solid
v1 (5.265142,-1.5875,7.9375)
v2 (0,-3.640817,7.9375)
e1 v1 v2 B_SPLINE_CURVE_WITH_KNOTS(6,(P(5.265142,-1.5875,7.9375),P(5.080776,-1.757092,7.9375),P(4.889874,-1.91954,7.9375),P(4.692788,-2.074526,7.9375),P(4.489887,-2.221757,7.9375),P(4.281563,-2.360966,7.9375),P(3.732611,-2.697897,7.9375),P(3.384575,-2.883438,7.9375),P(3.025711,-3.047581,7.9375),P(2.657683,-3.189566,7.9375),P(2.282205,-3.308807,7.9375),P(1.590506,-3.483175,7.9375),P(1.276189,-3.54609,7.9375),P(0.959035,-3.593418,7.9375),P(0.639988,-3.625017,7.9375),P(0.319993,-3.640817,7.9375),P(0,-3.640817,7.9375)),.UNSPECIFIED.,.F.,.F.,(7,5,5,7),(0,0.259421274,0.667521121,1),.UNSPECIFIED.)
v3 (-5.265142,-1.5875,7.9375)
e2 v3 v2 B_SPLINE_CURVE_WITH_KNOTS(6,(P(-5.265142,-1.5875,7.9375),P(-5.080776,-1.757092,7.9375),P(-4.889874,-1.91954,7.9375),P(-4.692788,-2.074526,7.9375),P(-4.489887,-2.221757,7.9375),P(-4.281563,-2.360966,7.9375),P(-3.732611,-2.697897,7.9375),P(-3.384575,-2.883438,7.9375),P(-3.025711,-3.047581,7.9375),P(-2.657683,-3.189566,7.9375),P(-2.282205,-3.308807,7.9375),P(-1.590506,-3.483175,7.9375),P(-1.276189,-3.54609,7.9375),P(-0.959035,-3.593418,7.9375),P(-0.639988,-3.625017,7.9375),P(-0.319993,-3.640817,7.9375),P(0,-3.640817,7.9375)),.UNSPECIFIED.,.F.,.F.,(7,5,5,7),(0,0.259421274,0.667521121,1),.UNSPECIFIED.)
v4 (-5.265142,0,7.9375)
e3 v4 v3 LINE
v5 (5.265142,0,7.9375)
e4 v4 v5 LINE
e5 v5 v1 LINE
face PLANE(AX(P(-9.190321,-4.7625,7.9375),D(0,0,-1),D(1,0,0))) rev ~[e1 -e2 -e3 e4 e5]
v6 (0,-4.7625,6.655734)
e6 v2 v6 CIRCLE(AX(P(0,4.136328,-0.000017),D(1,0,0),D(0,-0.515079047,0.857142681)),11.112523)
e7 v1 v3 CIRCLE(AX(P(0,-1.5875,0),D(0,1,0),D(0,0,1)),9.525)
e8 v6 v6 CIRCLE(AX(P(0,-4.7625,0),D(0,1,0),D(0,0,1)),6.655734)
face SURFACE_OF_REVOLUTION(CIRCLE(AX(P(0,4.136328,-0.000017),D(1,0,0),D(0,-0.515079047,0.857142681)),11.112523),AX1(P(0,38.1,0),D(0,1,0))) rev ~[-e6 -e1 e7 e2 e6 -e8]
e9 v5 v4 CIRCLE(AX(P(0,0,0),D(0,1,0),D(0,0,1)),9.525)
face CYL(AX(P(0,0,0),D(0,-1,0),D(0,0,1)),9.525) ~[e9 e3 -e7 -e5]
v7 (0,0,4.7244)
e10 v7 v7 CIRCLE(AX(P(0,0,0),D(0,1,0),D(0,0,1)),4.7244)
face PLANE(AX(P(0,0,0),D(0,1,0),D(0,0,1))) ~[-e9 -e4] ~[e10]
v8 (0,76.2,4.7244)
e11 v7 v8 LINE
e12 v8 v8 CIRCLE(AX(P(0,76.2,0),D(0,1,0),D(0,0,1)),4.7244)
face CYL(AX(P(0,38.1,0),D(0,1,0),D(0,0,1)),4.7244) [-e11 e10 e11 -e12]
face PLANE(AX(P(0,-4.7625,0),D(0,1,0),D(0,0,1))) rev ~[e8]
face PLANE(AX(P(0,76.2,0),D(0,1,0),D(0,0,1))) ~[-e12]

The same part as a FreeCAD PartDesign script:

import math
import FreeCAD as App
import Part
import Sketcher
Q = App.Units.Quantity

doc = App.newDocument("Part")
params = doc.addObject("Spreadsheet::Sheet", "Params")
for row, (alias, value) in enumerate([
    ("sketch1_width", "3 in"),
    ("sketch1_width2", "0.0625 in"),
    ("sketch1_width3", "3.1875 in"),
    ("sketch1_height", "0.186 in"),
    ("sketch1_height2", "0.189 in"),
    ("revolution_angle", "360 deg"),
    ("sketch2_width", "0.75 in"),
    ("pocket1_length", "0.1875 in"),
], start=1):
    params.set(f"A{row}", alias)
    params.set(f"B{row}", "=" + value)
    params.setAlias(f"B{row}", alias)

body = doc.addObject("PartDesign::Body", "Body")

# Sketch on YZ plane
sketch1 = body.newObject("Sketcher::SketchObject", "Sketch")
sketch1.AttachmentSupport = (doc.getObject("YZ_Plane"), [""])
sketch1.MapMode = "FlatFace"
sketch1.addGeometry([
    Part.LineSegment(App.Vector(76.2, 0, 0), App.Vector(76.2, 4.7, 0)),  # 0
    Part.LineSegment(App.Vector(76.2, 4.7, 0), App.Vector(0, 4.7, 0)),  # 1
    Part.LineSegment(App.Vector(0, 4.7, 0), App.Vector(0, 9.5, 0)),  # 2
    Part.LineSegment(App.Vector(0, 9.5, 0), App.Vector(-1.6, 9.5, 0)),  # 3
    Part.ArcOfCircle(Part.Circle(App.Vector(4.1, 0, 0), App.Vector(0, 0, 1), 11.1), math.radians(121), math.radians(143)),  # 4
    Part.LineSegment(App.Vector(-4.8, 6.7, 0), App.Vector(-4.8, 0, 0)),  # 5
    Part.LineSegment(App.Vector(-4.8, 0, 0), App.Vector(76.2, 0, 0)),  # 6
], False)
sketch1.addConstraint([
    Sketcher.Constraint("Coincident", 0, 2, 1, 1),
    Sketcher.Constraint("Coincident", 1, 2, 2, 1),
    Sketcher.Constraint("Coincident", 2, 2, 3, 1),
    Sketcher.Constraint("Coincident", 3, 2, 4, 1),
    Sketcher.Constraint("Coincident", 4, 2, 5, 1),
    Sketcher.Constraint("Coincident", 5, 2, 6, 1),
    Sketcher.Constraint("Coincident", 6, 2, 0, 1),
    Sketcher.Constraint("Vertical", 0),
    Sketcher.Constraint("Horizontal", 1),
    Sketcher.Constraint("Vertical", 2),
    Sketcher.Constraint("Horizontal", 3),
    Sketcher.Constraint("Vertical", 5),
    Sketcher.Constraint("Horizontal", 6),
    Sketcher.Constraint("PointOnObject", 1, 2, -2),
    Sketcher.Constraint("PointOnObject", 5, 2, -1),
    Sketcher.Constraint("DistanceX", 1, 2, 1, 1, Q("3 in")),
    Sketcher.Constraint("DistanceX", 3, 2, 3, 1, Q("0.0625 in")),
    Sketcher.Constraint("DistanceX", 6, 1, 6, 2, Q("3.1875 in")),
    Sketcher.Constraint("DistanceY", 0, 1, 0, 2, Q("0.186 in")),
    Sketcher.Constraint("DistanceY", 2, 1, 2, 2, Q("0.189 in")),
    Sketcher.Constraint("Radius", 4, 11.112523),
    Sketcher.Constraint("DistanceY", 5, 2, 5, 1, 6.655734),
])
sketch1.setExpression("Constraints[15]", "Params.sketch1_width")
sketch1.setExpression("Constraints[16]", "Params.sketch1_width2")
sketch1.setExpression("Constraints[17]", "Params.sketch1_width3")
sketch1.setExpression("Constraints[18]", "Params.sketch1_height")
sketch1.setExpression("Constraints[19]", "Params.sketch1_height2")
revolution = body.newObject("PartDesign::Revolution", "Revolution")
revolution.Profile = sketch1
revolution.ReferenceAxis = (sketch1, ["H_Axis"])
revolution.setExpression("Angle", "Params.revolution_angle")

# Sketch on XZ plane
sketch2 = body.newObject("Sketcher::SketchObject", "Sketch001")
sketch2.AttachmentSupport = (doc.getObject("XZ_Plane"), [""])
sketch2.MapMode = "FlatFace"
sketch2.AttachmentOffset = App.Placement(App.Vector(0, 0, 0.1875 * 25.4), App.Rotation())
sketch2.addGeometry([
    Part.LineSegment(App.Vector(-9.2, 7.9, 0), App.Vector(9.9, 7.9, 0)),
    Part.LineSegment(App.Vector(9.9, 7.9, 0), App.Vector(9.9, 11.7, 0)),
    Part.LineSegment(App.Vector(9.9, 11.7, 0), App.Vector(-9.2, 11.7, 0)),
    Part.LineSegment(App.Vector(-9.2, 11.7, 0), App.Vector(-9.2, 7.9, 0)),
], False)
sketch2.addConstraint([
    Sketcher.Constraint("Coincident", 0, 2, 1, 1),
    Sketcher.Constraint("Coincident", 1, 2, 2, 1),
    Sketcher.Constraint("Coincident", 2, 2, 3, 1),
    Sketcher.Constraint("Coincident", 3, 2, 0, 1),
    Sketcher.Constraint("Horizontal", 0),
    Sketcher.Constraint("Vertical", 1),
    Sketcher.Constraint("Horizontal", 2),
    Sketcher.Constraint("Vertical", 3),
    Sketcher.Constraint("DistanceX", 0, 1, 0, 2, Q("0.75 in")),
    Sketcher.Constraint("DistanceY", -1, 1, 0, 2, Q("0.3125 in")),
    Sketcher.Constraint("DistanceY", 1, 1, 1, 2, 3.810076),
    Sketcher.Constraint("DistanceX", -1, 1, 0, 2, 9.859679),
])
sketch2.setExpression("Constraints[8]", "Params.sketch2_width")
pocket1 = body.newObject("PartDesign::Pocket", "Pocket")
pocket1.Profile = sketch2
pocket1.setExpression("Length", "Params.pocket1_length")

doc.recompute()
